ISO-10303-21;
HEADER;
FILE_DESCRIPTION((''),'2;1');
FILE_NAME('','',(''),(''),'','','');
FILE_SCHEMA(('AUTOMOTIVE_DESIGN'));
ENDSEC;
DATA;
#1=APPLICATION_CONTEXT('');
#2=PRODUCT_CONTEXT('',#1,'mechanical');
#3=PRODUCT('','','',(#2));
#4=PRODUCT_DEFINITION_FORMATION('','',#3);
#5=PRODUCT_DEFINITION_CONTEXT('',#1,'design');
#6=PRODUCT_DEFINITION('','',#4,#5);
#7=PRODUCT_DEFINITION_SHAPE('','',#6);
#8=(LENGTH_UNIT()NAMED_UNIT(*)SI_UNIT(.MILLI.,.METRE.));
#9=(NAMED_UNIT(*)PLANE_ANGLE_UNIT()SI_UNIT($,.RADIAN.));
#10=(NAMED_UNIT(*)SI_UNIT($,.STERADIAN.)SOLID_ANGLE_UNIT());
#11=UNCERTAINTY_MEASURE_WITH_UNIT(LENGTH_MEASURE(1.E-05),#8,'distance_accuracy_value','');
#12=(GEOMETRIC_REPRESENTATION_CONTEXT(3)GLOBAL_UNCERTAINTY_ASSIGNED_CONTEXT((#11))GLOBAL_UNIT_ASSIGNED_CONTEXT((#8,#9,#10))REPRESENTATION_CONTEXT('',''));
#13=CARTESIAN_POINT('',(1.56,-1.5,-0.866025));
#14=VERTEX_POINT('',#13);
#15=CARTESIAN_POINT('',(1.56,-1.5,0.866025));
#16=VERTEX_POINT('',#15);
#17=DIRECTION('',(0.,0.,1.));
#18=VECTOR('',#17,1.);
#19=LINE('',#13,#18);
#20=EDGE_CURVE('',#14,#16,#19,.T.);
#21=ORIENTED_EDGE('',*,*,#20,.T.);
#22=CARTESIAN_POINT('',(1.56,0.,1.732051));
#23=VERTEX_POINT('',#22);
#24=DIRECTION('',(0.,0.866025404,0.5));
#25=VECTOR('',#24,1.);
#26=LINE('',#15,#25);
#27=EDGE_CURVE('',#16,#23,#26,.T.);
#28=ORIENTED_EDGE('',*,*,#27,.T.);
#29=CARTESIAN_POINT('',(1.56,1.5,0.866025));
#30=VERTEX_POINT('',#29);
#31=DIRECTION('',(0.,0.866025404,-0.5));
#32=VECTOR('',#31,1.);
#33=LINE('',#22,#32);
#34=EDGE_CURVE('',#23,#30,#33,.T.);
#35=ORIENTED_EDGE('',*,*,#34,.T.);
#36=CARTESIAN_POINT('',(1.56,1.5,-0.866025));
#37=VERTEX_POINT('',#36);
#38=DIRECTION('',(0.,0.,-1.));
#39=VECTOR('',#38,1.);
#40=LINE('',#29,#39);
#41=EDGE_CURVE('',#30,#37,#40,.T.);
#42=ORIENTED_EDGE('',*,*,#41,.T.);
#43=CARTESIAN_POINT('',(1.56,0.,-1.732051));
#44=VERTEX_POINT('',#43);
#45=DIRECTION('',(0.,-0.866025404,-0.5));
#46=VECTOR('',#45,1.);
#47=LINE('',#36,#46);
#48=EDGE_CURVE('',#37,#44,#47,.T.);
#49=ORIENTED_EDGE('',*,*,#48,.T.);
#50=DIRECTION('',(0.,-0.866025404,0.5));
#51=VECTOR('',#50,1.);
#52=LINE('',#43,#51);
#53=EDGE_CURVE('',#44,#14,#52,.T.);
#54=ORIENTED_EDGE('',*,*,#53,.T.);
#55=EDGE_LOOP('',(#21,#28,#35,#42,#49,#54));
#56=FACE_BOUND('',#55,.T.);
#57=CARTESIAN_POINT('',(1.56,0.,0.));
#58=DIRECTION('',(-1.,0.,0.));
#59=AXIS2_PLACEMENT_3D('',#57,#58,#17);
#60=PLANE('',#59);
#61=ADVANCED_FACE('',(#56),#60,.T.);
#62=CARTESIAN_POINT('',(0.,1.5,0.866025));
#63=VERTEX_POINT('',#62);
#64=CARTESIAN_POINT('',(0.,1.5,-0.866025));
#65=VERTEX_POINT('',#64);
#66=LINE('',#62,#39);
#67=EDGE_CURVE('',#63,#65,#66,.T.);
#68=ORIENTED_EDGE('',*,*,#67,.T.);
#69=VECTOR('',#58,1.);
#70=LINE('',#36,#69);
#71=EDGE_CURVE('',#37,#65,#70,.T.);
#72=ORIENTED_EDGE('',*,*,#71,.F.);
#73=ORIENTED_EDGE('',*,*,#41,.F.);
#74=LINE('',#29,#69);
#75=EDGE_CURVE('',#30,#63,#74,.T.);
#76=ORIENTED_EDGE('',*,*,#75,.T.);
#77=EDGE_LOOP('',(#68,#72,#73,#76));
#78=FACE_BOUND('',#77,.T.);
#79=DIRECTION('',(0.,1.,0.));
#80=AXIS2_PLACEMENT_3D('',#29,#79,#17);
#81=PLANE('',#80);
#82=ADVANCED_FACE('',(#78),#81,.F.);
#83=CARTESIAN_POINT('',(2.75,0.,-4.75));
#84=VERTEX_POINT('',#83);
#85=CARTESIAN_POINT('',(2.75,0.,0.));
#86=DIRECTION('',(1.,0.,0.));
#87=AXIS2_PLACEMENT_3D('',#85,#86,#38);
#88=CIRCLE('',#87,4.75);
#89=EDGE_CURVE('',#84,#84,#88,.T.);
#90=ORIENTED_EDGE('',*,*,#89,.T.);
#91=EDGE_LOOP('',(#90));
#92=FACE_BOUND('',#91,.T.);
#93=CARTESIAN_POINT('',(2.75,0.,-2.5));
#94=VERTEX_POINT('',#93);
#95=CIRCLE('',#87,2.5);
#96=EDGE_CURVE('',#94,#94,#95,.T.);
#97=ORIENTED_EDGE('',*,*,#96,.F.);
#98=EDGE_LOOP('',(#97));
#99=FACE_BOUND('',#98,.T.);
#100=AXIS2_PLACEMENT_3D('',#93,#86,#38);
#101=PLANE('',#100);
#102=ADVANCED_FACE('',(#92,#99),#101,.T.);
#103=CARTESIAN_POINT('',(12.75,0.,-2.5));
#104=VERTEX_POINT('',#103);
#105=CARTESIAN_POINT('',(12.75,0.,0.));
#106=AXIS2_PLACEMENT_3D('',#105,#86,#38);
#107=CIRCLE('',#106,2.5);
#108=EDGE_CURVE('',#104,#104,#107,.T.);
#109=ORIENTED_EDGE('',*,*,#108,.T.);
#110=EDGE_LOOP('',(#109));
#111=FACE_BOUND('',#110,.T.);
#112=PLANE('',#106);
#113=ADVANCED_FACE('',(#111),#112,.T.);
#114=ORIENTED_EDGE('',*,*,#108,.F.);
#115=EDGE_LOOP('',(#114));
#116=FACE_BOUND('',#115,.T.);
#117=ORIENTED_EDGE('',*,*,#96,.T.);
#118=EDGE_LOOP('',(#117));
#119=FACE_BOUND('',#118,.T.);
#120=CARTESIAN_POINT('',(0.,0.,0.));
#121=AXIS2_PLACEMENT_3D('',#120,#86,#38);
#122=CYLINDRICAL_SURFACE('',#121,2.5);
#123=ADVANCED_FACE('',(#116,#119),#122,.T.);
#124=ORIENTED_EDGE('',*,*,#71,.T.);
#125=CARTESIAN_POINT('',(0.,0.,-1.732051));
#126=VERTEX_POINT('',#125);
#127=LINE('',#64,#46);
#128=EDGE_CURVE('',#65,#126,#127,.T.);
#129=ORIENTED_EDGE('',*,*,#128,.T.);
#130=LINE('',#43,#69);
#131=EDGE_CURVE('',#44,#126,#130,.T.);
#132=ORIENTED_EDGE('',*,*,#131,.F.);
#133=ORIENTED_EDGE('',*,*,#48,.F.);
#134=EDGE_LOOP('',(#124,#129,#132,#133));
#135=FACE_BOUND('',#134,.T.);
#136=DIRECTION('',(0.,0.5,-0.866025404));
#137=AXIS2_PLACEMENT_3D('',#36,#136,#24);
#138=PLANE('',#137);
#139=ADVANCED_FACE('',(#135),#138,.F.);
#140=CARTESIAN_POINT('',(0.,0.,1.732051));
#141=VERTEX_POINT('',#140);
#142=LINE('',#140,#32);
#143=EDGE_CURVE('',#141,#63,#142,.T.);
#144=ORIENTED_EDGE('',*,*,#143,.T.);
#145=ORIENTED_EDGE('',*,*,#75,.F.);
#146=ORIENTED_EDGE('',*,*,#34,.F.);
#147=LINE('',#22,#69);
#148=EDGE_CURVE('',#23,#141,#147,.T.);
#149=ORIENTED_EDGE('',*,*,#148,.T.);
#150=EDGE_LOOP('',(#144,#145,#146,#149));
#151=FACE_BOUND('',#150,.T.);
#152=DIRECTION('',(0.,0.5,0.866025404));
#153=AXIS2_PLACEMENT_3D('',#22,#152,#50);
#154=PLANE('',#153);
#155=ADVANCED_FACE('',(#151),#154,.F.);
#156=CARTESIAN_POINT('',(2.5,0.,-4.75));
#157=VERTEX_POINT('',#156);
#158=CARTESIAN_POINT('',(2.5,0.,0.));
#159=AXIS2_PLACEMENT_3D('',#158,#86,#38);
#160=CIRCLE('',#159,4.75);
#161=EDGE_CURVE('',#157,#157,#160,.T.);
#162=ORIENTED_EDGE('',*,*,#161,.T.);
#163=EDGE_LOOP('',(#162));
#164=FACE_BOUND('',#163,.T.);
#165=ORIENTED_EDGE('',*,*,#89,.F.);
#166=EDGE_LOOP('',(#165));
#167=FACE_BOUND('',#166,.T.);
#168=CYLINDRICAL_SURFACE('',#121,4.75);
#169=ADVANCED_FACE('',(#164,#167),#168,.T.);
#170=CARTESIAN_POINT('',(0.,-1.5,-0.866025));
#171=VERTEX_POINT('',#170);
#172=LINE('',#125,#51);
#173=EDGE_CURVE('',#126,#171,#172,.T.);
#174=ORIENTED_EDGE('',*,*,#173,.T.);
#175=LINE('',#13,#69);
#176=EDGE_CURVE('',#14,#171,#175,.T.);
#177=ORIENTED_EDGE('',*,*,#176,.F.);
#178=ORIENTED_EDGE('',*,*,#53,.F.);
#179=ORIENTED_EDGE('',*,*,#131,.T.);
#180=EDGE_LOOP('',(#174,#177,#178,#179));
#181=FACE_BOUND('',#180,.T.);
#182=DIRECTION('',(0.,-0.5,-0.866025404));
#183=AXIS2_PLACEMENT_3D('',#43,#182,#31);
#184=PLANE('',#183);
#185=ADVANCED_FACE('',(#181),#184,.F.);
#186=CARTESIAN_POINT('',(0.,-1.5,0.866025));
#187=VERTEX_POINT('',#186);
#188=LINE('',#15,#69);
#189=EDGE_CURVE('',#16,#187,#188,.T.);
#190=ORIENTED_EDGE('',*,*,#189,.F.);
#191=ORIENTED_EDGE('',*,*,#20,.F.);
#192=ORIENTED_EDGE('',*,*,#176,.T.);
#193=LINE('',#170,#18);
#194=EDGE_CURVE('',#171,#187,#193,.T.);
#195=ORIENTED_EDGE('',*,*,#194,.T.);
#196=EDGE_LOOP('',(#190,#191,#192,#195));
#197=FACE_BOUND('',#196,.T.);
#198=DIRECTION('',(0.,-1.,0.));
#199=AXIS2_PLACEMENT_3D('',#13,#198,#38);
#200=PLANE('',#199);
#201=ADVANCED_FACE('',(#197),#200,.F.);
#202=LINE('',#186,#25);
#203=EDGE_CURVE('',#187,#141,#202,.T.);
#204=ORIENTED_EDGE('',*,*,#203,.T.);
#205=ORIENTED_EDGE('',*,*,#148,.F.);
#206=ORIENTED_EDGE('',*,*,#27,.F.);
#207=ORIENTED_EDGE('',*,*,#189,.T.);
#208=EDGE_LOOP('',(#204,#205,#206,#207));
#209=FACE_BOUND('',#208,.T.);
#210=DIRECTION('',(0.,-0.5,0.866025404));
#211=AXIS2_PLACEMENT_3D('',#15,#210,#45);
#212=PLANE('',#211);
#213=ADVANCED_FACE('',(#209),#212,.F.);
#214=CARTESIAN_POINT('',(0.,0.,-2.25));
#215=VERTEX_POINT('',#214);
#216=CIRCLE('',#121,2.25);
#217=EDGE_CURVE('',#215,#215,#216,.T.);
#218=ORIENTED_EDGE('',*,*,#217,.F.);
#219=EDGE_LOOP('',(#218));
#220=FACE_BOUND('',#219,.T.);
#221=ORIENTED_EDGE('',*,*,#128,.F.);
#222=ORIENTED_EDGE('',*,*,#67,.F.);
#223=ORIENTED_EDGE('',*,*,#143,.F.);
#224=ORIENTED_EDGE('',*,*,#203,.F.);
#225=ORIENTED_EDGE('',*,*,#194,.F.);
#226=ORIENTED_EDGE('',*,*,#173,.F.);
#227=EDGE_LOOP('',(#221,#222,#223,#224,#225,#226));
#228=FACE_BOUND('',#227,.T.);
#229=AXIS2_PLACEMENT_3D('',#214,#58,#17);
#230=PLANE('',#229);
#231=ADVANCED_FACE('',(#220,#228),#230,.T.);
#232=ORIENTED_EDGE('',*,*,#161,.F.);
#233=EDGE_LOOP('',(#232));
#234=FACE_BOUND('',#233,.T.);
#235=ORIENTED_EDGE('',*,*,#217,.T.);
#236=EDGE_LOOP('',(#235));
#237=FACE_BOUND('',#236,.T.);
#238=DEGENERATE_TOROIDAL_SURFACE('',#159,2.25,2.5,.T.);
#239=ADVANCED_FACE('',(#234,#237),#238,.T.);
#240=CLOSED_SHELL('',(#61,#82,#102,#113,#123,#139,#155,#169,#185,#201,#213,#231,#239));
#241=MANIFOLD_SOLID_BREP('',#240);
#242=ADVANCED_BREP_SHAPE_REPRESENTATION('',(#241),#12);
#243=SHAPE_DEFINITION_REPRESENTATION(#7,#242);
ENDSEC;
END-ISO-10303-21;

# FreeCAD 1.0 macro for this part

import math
import FreeCAD as App
import Part
import Sketcher
Q = App.Units.Quantity

doc = App.newDocument("Part")
body = doc.addObject("PartDesign::Body", "Body")

# Sketch on XZ plane
sketch1 = doc.addObject("Sketcher::SketchObject", "Sketch")
body.addObject(sketch1)
sketch1.AttachmentSupport = (doc.XZ_Plane, [""])
sketch1.MapMode = "FlatFace"
sketch1.addGeometry([
    Part.LineSegment(App.Vector(0, 0, 0), App.Vector(12.75, 0, 0)),  # 0
    Part.LineSegment(App.Vector(12.75, 0, 0), App.Vector(12.75, -2.5, 0)),  # 1
    Part.LineSegment(App.Vector(12.75, -2.5, 0), App.Vector(2.75, -2.5, 0)),  # 2
    Part.LineSegment(App.Vector(2.75, -2.5, 0), App.Vector(2.75, -4.75, 0)),  # 3
    Part.LineSegment(App.Vector(2.75, -4.75, 0), App.Vector(2.5, -4.75, 0)),  # 4
    Part.ArcOfCircle(Part.Circle(App.Vector(2.5, -2.25, 0), App.Vector(0, 0, 1), 2.5), math.radians(180), math.radians(270)),  # 5
    Part.LineSegment(App.Vector(0, -2.25, 0), App.Vector(0, 0, 0)),  # 6
], False)
sketch1.addConstraint([
    Sketcher.Constraint("Coincident", 0, 2, 1, 1),
    Sketcher.Constraint("Coincident", 1, 2, 2, 1),
    Sketcher.Constraint("Coincident", 2, 2, 3, 1),
    Sketcher.Constraint("Coincident", 3, 2, 4, 1),
    Sketcher.Constraint("Tangent", 4, 2, 5, 2),
    Sketcher.Constraint("Tangent", 5, 1, 6, 1),
    Sketcher.Constraint("Coincident", 6, 2, 0, 1),
    Sketcher.Constraint("Horizontal", 0),
    Sketcher.Constraint("Vertical", 1),
    Sketcher.Constraint("Horizontal", 2),
    Sketcher.Constraint("Vertical", 3),
    Sketcher.Constraint("Horizontal", 4),
    Sketcher.Constraint("Vertical", 6),
    Sketcher.Constraint("Coincident", 6, 2, -1, 1),
    Sketcher.Constraint("Equal", 3, 6),
    Sketcher.Constraint("Radius", 5, Q("2.5 mm")),
    Sketcher.Constraint("DistanceX", 2, 2, 2, 1, Q("10 mm")),
    Sketcher.Constraint("DistanceX", 0, 1, 0, 2, Q("12.75 mm")),
    Sketcher.Constraint("DistanceY", 3, 2, 3, 1, Q("2.25 mm")),
])
revolution = doc.addObject("PartDesign::Revolution", "Revolution")
body.addObject(revolution)
revolution.Profile = sketch1
revolution.ReferenceAxis = (sketch1, ["H_Axis"])
revolution.Angle = 360

# Sketch on YZ plane
sketch2 = doc.addObject("Sketcher::SketchObject", "Sketch001")
body.addObject(sketch2)
sketch2.AttachmentSupport = (doc.YZ_Plane, [""])
sketch2.MapMode = "FlatFace"
sketch2.addGeometry([
    Part.LineSegment(App.Vector(0, 1.7, 0), App.Vector(1.5, 0.9, 0)),  # 0
    Part.LineSegment(App.Vector(1.5, 0.9, 0), App.Vector(1.5, -0.9, 0)),  # 1
    Part.LineSegment(App.Vector(1.5, -0.9, 0), App.Vector(0, -1.7, 0)),  # 2
    Part.LineSegment(App.Vector(0, -1.7, 0), App.Vector(-1.5, -0.9, 0)),  # 3
    Part.LineSegment(App.Vector(-1.5, -0.9, 0), App.Vector(-1.5, 0.9, 0)),  # 4
    Part.LineSegment(App.Vector(-1.5, 0.9, 0), App.Vector(0, 1.7, 0)),  # 5
], False)
sketch2.addConstraint([
    Sketcher.Constraint("Coincident", 0, 2, 1, 1),
    Sketcher.Constraint("Coincident", 1, 2, 2, 1),
    Sketcher.Constraint("Coincident", 2, 2, 3, 1),
    Sketcher.Constraint("Coincident", 3, 2, 4, 1),
    Sketcher.Constraint("Coincident", 4, 2, 5, 1),
    Sketcher.Constraint("Coincident", 5, 2, 0, 1),
    Sketcher.Constraint("Vertical", 1),
    Sketcher.Constraint("Vertical", 4),
    Sketcher.Constraint("Symmetric", 0, 2, 3, 2, -1, 1),
    Sketcher.Constraint("Symmetric", 2, 2, 5, 2, -1, 1),
    Sketcher.Constraint("PointOnObject", 2, 2, -2),
    Sketcher.Constraint("Parallel", 2, 5),
    Sketcher.Constraint("Horizontal", 1, 2, 3, 2),
    Sketcher.Constraint("Angle", 0, Q("-30 deg")),
    Sketcher.Constraint("DistanceX", 3, 2, 1, 2, Q("3 mm")),
    Sketcher.Constraint("DistanceY", 1, 2, 1, 1, Q("1.732051 mm")),
])
pocket1 = doc.addObject("PartDesign::Pocket", "Pocket")
body.addObject(pocket1)
pocket1.Profile = sketch2
pocket1.Length = 1.56
pocket1.Reversed = True

doc.recompute()
